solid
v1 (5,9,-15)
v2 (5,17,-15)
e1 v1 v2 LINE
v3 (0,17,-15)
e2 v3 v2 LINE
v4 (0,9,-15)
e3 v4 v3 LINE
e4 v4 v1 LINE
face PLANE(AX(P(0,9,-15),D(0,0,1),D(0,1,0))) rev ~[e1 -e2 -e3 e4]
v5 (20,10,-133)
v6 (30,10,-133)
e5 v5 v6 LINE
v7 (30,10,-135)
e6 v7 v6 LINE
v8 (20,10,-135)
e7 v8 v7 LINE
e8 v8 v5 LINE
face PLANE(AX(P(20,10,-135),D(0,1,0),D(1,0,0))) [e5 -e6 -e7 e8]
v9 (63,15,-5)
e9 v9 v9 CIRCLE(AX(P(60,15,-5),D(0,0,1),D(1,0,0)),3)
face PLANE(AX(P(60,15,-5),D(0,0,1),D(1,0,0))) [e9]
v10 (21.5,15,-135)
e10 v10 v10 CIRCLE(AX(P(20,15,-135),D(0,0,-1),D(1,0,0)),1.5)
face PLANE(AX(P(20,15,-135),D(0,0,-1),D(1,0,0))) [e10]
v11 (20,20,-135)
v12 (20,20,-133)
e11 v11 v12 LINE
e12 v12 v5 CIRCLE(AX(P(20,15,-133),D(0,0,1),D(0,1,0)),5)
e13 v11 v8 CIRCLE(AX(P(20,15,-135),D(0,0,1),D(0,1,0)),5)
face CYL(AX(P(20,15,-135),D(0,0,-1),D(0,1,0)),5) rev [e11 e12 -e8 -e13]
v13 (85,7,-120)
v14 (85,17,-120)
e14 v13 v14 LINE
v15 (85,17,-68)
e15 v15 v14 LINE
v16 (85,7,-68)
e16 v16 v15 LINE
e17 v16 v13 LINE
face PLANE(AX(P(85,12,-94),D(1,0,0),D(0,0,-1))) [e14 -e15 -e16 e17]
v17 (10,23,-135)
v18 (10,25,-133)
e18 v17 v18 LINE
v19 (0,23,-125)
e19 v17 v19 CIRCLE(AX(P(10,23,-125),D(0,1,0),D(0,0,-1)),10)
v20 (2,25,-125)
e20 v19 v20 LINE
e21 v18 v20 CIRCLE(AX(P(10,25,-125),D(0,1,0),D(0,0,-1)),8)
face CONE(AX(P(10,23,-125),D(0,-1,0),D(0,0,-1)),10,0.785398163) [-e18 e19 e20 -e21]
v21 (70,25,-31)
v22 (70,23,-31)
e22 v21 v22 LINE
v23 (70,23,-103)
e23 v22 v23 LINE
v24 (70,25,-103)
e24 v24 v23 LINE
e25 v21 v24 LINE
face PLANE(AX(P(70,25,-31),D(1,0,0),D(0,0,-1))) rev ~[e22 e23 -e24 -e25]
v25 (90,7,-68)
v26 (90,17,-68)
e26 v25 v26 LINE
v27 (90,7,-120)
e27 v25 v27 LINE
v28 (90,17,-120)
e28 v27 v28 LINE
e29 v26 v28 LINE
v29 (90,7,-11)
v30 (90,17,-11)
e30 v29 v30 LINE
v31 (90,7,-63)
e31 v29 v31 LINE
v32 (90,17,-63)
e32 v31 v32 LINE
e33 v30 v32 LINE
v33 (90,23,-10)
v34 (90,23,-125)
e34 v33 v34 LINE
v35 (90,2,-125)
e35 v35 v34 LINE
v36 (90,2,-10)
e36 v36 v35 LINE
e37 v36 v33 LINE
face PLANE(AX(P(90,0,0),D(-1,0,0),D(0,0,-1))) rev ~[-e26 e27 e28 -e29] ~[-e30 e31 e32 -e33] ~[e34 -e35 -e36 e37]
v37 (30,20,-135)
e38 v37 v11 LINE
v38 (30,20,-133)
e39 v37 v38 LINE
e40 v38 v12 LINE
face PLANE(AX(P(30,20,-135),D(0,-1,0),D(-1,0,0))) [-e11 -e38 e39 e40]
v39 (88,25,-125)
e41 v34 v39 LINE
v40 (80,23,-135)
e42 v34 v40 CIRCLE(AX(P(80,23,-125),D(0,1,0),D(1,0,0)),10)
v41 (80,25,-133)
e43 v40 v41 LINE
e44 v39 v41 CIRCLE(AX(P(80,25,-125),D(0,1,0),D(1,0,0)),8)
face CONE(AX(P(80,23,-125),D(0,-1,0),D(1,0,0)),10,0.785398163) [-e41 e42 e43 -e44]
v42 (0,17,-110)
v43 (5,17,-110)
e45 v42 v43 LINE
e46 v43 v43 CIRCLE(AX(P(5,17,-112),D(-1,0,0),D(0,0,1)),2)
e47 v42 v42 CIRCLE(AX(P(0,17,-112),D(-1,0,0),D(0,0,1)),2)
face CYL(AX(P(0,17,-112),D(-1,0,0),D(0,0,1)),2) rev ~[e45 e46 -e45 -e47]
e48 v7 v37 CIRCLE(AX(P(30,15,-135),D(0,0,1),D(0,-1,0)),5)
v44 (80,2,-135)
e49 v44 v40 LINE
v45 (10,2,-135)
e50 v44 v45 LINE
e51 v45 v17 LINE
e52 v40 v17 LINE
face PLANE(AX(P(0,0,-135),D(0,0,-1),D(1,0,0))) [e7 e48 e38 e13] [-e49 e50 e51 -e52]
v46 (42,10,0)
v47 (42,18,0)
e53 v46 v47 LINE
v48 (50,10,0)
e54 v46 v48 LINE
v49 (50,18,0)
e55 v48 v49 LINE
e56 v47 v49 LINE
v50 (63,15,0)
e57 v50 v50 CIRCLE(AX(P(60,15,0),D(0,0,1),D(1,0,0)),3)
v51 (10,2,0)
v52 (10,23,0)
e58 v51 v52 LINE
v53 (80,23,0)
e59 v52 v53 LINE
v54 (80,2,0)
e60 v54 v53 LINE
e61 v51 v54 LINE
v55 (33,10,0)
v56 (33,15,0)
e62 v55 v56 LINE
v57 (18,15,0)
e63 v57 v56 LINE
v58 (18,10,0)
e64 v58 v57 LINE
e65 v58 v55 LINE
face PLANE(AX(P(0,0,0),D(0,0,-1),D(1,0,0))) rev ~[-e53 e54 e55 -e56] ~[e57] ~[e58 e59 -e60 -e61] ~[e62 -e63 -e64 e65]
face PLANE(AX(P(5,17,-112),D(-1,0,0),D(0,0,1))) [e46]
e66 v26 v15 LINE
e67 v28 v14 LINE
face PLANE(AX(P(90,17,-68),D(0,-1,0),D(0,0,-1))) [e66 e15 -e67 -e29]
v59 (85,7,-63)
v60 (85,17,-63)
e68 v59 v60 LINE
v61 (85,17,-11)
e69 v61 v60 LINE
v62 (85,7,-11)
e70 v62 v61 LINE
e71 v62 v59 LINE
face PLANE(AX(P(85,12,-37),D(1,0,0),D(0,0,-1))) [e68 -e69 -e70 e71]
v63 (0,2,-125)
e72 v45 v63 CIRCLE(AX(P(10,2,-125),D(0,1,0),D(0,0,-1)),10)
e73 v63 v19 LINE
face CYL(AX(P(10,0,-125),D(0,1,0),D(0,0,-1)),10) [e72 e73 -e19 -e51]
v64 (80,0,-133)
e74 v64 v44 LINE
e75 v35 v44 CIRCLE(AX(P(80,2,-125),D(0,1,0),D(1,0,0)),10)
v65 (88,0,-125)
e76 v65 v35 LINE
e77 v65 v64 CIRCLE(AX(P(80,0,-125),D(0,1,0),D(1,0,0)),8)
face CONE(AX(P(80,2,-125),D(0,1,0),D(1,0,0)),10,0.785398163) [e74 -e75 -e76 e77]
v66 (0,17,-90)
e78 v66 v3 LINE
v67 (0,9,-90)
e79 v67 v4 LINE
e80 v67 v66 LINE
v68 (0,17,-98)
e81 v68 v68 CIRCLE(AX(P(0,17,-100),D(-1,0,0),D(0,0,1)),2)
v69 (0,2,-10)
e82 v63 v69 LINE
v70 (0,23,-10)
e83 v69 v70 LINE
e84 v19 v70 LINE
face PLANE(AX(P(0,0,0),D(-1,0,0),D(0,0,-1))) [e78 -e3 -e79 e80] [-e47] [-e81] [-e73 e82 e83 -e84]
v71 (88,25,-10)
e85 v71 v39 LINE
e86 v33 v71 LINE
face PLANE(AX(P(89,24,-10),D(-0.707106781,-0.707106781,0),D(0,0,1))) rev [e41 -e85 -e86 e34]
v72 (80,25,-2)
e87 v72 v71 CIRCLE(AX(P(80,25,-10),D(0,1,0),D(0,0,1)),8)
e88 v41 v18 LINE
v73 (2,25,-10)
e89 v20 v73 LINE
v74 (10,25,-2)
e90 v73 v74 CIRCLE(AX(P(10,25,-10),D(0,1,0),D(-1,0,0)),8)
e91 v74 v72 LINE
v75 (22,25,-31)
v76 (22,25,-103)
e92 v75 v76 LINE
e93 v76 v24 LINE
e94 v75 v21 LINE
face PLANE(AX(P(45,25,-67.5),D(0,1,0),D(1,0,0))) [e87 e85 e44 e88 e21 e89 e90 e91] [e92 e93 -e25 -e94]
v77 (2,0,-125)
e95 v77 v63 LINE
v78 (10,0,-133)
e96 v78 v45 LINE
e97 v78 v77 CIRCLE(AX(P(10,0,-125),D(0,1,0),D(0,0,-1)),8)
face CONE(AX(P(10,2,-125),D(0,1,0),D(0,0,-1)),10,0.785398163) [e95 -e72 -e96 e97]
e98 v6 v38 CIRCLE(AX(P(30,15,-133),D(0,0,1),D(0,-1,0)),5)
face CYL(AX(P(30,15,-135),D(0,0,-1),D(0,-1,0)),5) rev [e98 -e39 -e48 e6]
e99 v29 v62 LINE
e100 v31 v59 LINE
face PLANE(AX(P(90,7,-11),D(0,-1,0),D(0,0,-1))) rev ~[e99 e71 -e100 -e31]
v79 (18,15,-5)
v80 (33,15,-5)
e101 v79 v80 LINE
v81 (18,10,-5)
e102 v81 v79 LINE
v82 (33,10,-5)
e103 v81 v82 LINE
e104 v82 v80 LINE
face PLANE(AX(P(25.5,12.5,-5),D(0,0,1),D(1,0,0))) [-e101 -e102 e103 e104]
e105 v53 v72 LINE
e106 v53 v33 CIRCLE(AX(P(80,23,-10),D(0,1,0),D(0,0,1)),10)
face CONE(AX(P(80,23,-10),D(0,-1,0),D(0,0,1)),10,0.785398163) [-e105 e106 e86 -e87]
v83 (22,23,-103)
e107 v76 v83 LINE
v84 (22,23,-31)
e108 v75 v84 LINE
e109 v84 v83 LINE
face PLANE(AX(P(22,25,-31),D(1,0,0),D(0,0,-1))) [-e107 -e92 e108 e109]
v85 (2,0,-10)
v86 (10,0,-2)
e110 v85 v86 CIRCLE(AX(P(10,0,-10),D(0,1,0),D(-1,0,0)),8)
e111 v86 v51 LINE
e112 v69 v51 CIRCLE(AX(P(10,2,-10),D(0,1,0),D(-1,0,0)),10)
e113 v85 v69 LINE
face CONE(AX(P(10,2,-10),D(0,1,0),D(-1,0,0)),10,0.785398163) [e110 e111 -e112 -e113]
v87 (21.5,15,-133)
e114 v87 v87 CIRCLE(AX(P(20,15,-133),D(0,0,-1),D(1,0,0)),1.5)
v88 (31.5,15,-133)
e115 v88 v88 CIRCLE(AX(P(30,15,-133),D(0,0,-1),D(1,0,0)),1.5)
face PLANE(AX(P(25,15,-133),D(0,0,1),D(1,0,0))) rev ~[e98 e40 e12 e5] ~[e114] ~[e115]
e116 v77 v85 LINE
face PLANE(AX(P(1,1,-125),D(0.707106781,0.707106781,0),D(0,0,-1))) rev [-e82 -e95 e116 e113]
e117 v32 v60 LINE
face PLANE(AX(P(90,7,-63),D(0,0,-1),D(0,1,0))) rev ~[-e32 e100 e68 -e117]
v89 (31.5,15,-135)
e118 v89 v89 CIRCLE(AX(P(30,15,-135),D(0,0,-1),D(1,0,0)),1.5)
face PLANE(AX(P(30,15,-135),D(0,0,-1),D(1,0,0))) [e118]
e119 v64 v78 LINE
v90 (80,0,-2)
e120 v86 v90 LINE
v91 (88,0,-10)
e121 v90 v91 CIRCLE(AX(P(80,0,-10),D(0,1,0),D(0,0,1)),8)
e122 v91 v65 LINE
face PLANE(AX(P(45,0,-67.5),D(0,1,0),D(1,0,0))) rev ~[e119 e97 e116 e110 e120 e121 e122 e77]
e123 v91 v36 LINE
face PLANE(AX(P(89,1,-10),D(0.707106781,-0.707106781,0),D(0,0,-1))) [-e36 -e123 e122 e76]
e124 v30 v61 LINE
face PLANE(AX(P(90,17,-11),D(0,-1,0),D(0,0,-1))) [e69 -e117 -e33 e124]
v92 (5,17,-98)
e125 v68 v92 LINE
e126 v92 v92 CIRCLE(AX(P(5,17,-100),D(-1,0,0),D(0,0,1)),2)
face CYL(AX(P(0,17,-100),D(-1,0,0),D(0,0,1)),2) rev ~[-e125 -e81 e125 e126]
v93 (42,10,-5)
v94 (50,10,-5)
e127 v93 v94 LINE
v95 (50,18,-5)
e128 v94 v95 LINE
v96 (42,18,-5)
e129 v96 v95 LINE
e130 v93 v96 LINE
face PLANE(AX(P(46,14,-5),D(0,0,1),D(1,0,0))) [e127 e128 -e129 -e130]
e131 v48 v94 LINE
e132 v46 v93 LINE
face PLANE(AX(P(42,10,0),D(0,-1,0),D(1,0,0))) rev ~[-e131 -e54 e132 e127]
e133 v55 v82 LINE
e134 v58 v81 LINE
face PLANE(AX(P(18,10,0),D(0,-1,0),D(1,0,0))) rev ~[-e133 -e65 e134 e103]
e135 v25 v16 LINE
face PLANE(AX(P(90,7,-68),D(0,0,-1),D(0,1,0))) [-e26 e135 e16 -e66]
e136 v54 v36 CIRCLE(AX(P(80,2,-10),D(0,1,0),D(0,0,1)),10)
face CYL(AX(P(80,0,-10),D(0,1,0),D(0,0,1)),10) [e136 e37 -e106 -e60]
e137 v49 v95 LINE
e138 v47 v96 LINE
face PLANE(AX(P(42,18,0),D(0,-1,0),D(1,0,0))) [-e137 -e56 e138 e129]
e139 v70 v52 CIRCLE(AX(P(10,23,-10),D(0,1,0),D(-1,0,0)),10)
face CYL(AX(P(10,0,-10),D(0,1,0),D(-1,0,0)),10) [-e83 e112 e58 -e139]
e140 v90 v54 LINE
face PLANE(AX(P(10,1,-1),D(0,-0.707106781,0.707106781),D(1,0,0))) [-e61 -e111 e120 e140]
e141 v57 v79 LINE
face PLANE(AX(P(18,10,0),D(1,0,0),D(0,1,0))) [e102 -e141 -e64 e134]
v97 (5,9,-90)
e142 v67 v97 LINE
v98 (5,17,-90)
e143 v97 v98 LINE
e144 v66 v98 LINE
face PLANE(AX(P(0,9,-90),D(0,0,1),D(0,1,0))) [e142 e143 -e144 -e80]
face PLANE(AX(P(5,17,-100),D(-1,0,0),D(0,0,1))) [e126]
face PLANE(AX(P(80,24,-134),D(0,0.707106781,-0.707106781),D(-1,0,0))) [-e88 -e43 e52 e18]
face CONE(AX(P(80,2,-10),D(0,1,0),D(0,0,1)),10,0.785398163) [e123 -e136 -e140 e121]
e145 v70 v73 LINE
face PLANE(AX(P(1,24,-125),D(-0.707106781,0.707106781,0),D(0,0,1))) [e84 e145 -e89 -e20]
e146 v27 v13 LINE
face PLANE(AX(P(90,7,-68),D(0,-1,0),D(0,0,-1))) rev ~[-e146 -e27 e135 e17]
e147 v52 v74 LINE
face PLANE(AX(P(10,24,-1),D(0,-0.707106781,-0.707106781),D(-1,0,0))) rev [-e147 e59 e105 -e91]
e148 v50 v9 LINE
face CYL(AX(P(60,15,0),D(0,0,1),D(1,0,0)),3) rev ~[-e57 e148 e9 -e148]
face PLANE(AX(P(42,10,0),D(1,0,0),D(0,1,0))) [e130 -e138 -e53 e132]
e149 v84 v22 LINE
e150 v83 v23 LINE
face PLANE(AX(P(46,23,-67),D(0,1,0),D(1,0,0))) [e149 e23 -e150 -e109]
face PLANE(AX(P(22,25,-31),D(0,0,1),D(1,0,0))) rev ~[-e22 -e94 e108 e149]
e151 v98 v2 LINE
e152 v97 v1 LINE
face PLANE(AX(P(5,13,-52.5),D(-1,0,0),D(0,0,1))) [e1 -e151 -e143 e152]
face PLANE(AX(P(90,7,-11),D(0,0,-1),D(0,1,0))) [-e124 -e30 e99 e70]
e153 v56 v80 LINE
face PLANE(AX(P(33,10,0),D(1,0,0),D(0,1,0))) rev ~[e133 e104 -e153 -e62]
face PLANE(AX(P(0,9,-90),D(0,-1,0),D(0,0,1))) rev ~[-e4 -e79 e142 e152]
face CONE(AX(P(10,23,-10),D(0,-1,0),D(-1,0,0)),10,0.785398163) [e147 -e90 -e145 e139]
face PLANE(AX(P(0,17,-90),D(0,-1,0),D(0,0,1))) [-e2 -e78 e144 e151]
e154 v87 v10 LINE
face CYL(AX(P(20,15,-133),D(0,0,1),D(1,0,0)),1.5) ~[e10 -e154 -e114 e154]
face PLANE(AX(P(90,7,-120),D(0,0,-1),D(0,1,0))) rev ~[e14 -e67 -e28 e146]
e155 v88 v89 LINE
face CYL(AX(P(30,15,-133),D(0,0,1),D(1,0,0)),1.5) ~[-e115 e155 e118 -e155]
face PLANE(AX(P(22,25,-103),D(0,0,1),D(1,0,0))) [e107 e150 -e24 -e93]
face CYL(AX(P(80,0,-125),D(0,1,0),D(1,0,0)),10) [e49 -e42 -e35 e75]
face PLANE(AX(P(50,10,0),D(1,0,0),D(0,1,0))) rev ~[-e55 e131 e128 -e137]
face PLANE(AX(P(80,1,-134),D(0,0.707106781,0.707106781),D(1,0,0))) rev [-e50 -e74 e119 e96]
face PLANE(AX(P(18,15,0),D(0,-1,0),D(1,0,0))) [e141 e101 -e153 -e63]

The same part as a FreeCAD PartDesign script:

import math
import FreeCAD as App
import Part
import Sketcher
from FreeCAD import Vector


def edges_at(feature, points):
    """Names of the edges that pass closest to the given points."""
    edges = feature.Shape.Edges
    near = lambda p: min(range(len(edges)), key=lambda i: edges[i].distToShape(Part.Vertex(*p))[0])
    return sorted({f"Edge{near(p) + 1}" for p in points})


def add_polygon(sketch, points):
    """Adds a closed chain of lines whose ends are joined by coincident constraints."""
    first, n = sketch.GeometryCount, len(points)
    for a, b in zip(points, points[1:] + points[:1]):
        sketch.addGeometry(Part.LineSegment(App.Vector(*a, 0), App.Vector(*b, 0)), False)
    for i in range(n):
        sketch.addConstraint(Sketcher.Constraint("Coincident", first + i, 2, first + (i + 1) % n, 1))

doc = App.newDocument("Part")
body = doc.addObject("PartDesign::Body", "Body")

# Sketch on XZ plane
sketch1 = body.newObject("Sketcher::SketchObject", "Sketch")
sketch1.AttachmentSupport = (doc.getObject("XZ_Plane"), [""])
sketch1.MapMode = "FlatFace"
add_polygon(sketch1, [(0, -135), (0, 0), (90, 0), (90, -135)])  # lines 0-3
sketch1.addConstraint([
    Sketcher.Constraint("Vertical", 0),
    Sketcher.Constraint("Horizontal", 1),
    Sketcher.Constraint("Vertical", 2),
    Sketcher.Constraint("Horizontal", 3),
    Sketcher.Constraint("Coincident", 0, 2, -1, 1),
    Sketcher.Constraint("DistanceX", 1, 1, 1, 2, 90.0),
    Sketcher.Constraint("DistanceY", 0, 1, 0, 2, 135.0),
])
pad1 = body.newObject("PartDesign::Pad", "Pad")
pad1.Profile = sketch1
pad1.Length = 25
pad1.Reversed = True
doc.recompute()

fillet = body.newObject("PartDesign::Fillet", "Fillet")
fillet.Base = (pad1, edges_at(pad1, [(90, 12.5, 0)]))
fillet.Radius = 10
doc.recompute()

fillet2 = body.newObject("PartDesign::Fillet", "Fillet001")
fillet2.Base = (fillet, edges_at(fillet, [(90, 12.5, -135)]))
fillet2.Radius = 10
doc.recompute()

fillet3 = body.newObject("PartDesign::Fillet", "Fillet002")
fillet3.Base = (fillet2, edges_at(fillet2, [(0, 12.5, -135)]))
fillet3.Radius = 10
doc.recompute()

fillet4 = body.newObject("PartDesign::Fillet", "Fillet003")
fillet4.Base = (fillet3, edges_at(fillet3, [(0, 12.5, 0)]))
fillet4.Radius = 10
doc.recompute()

chamfer = body.newObject("PartDesign::Chamfer", "Chamfer")
chamfer.Base = (fillet4, edges_at(fillet4, [
    (90, 25, -67.5),
    (87.071, 25, -2.929),
    (87.071, 25, -132.071),
    (45, 25, -135),
    (2.929, 25, -132.071),
    (45, 25, 0),
    (0, 25, -67.5),
    (2.929, 25, -2.929),
]))
chamfer.Size = 2
doc.recompute()

chamfer2 = body.newObject("PartDesign::Chamfer", "Chamfer001")
chamfer2.Base = (chamfer, edges_at(chamfer, [
    (90, 0, -67.5),
    (87.071, 0, -2.929),
    (87.071, 0, -132.071),
    (45, 0, -135),
    (2.929, 0, -132.071),
    (45, 0, 0),
    (0, 0, -67.5),
    (2.929, 0, -2.929),
]))
chamfer2.Size = 2

# Sketch on XY plane
sketch2 = body.newObject("Sketcher::SketchObject", "Sketch001")
sketch2.AttachmentSupport = (doc.getObject("XY_Plane"), [""])
sketch2.MapMode = "FlatFace"
sketch2.addGeometry(Part.Circle(Vector(60, 15, 0), Vector(0, 0, 1), 3), False)  # 0
add_polygon(sketch2, [(42, 18), (42, 10), (50, 10), (50, 18)])  # lines 1-4
add_polygon(sketch2, [(18, 15), (18, 10), (33, 10), (33, 15)])  # lines 5-8
sketch2.addConstraint([
    Sketcher.Constraint("Vertical", 1),
    Sketcher.Constraint("Horizontal", 2),
    Sketcher.Constraint("Vertical", 3),
    Sketcher.Constraint("Horizontal", 4),
    Sketcher.Constraint("Vertical", 5),
    Sketcher.Constraint("Horizontal", 6),
    Sketcher.Constraint("Vertical", 7),
    Sketcher.Constraint("Horizontal", 8),
    Sketcher.Constraint("Horizontal", 2, 2, 5, 2),
    Sketcher.Constraint("Horizontal", 0, 3, 7, 2),
    Sketcher.Constraint("Equal", 4, 1),
    Sketcher.Constraint("Diameter", 0, 6.0),
    Sketcher.Constraint("DistanceX", 2, 1, 2, 2, 8.0),
    Sketcher.Constraint("DistanceX", 6, 1, 6, 2, 15.0),
    Sketcher.Constraint("DistanceY", 5, 2, 5, 1, 5.0),
    Sketcher.Constraint("DistanceX", -1, 1, 0, 3, 60.0),
    Sketcher.Constraint("DistanceY", -1, 1, 0, 3, 15.0),
    Sketcher.Constraint("DistanceX", -1, 1, 1, 2, 42.0),
    Sketcher.Constraint("DistanceX", -1, 1, 5, 2, 18.0),
])
pocket1 = body.newObject("PartDesign::Pocket", "Pocket")
pocket1.Profile = sketch2
pocket1.Length = 5

# Sketch on YZ plane
sketch3 = body.newObject("Sketcher::SketchObject", "Sketch002")
sketch3.AttachmentSupport = (doc.getObject("YZ_Plane"), [""])
sketch3.MapMode = "FlatFace"
sketch3.addGeometry(Part.Circle(Vector(17, -112, 0), Vector(0, 0, 1), 2), False)  # 0
sketch3.addGeometry(Part.Circle(Vector(17, -100, 0), Vector(0, 0, 1), 2), False)  # 1
add_polygon(sketch3, [(17, -90), (9, -90), (9, -15), (17, -15)])  # lines 2-5
sketch3.addConstraint([
    Sketcher.Constraint("Horizontal", 2),
    Sketcher.Constraint("Vertical", 3),
    Sketcher.Constraint("Horizontal", 4),
    Sketcher.Constraint("Vertical", 5),
    Sketcher.Constraint("Equal", 0, 1),
    Sketcher.Constraint("Vertical", 0, 3, 1, 3),
    Sketcher.Constraint("Vertical", 1, 3, 4, 2),
    Sketcher.Constraint("Diameter", 0, 4.0),
    Sketcher.Constraint("DistanceX", 2, 2, 2, 1, 8.0),
    Sketcher.Constraint("DistanceY", 3, 1, 3, 2, 75.0),
    Sketcher.Constraint("DistanceX", -1, 1, 0, 3, 17.0),
    Sketcher.Constraint("DistanceY", 0, 3, -1, 1, 112.0),
    Sketcher.Constraint("DistanceY", 1, 3, -1, 1, 100.0),
    Sketcher.Constraint("DistanceY", 2, 2, -1, 1, 90.0),
])
pocket2 = body.newObject("PartDesign::Pocket", "Pocket001")
pocket2.Profile = sketch3
pocket2.Length = 5
pocket2.Reversed = True

# Sketch on XZ plane
sketch4 = body.newObject("Sketcher::SketchObject", "Sketch003")
sketch4.AttachmentSupport = (doc.getObject("XZ_Plane"), [""])
sketch4.MapMode = "FlatFace"
sketch4.AttachmentOffset = App.Placement(Vector(0, 0, -25), App.Rotation())
add_polygon(sketch4, [(22, -103), (22, -31), (70, -31), (70, -103)])  # lines 0-3
sketch4.addConstraint([
    Sketcher.Constraint("Vertical", 0),
    Sketcher.Constraint("Horizontal", 1),
    Sketcher.Constraint("Vertical", 2),
    Sketcher.Constraint("Horizontal", 3),
    Sketcher.Constraint("DistanceX", 1, 1, 1, 2, 48.0),
    Sketcher.Constraint("DistanceY", 0, 1, 0, 2, 72.0),
    Sketcher.Constraint("DistanceX", -1, 1, 0, 2, 22.0),
    Sketcher.Constraint("DistanceY", 0, 2, -1, 1, 31.0),
])
pocket3 = body.newObject("PartDesign::Pocket", "Pocket002")
pocket3.Profile = sketch4
pocket3.Length = 2
pocket3.Reversed = True

# Sketch on XY plane
sketch5 = body.newObject("Sketcher::SketchObject", "Sketch004")
sketch5.AttachmentSupport = (doc.getObject("XY_Plane"), [""])
sketch5.MapMode = "FlatFace"
sketch5.AttachmentOffset = App.Placement(Vector(0, 0, -135), App.Rotation())
sketch5.addGeometry([
    Part.LineSegment(Vector(20, 20, 0), Vector(30, 20, 0)),
    Part.ArcOfCircle(Part.Circle(Vector(30, 15, 0), Vector(0, 0, 1), 5), math.radians(-90), math.radians(90)),
    Part.LineSegment(Vector(30, 10, 0), Vector(20, 10, 0)),
    Part.ArcOfCircle(Part.Circle(Vector(20, 15, 0), Vector(0, 0, 1), 5), math.radians(90), math.radians(270)),
], False)
sketch5.addConstraint([
    Sketcher.Constraint("Tangent", 0, 2, 1, 2),
    Sketcher.Constraint("Tangent", 1, 1, 2, 1),
    Sketcher.Constraint("Tangent", 2, 2, 3, 2),
    Sketcher.Constraint("Tangent", 3, 1, 0, 1),
    Sketcher.Constraint("Horizontal", 0),
    Sketcher.Constraint("Horizontal", 2),
    Sketcher.Constraint("Radius", 1, 5.0),
    Sketcher.Constraint("DistanceX", 0, 1, 0, 2, 10.0),
    Sketcher.Constraint("DistanceX", -1, 1, 1, 3, 30.0),
    Sketcher.Constraint("DistanceY", -1, 1, 1, 3, 15.0),
])
pocket4 = body.newObject("PartDesign::Pocket", "Pocket003")
pocket4.Profile = sketch5
pocket4.Length = 2
pocket4.Reversed = True

# Sketch on XY plane
sketch6 = body.newObject("Sketcher::SketchObject", "Sketch005")
sketch6.AttachmentSupport = (doc.getObject("XY_Plane"), [""])
sketch6.MapMode = "FlatFace"
sketch6.AttachmentOffset = App.Placement(Vector(0, 0, -133), App.Rotation())
sketch6.addGeometry([
    Part.Circle(Vector(30, 15, 0), Vector(0, 0, 1), 1.5),
    Part.Circle(Vector(20, 15, 0), Vector(0, 0, 1), 1.5),
], False)
sketch6.addConstraint([
    Sketcher.Constraint("Equal", 0, 1),
    Sketcher.Constraint("Horizontal", 0, 3, 1, 3),
    Sketcher.Constraint("Diameter", 0, 3.0),
    Sketcher.Constraint("DistanceX", -1, 1, 0, 3, 30.0),
    Sketcher.Constraint("DistanceY", -1, 1, 0, 3, 15.0),
    Sketcher.Constraint("DistanceX", -1, 1, 1, 3, 20.0),
])
pad2 = body.newObject("PartDesign::Pad", "Pad001")
pad2.Profile = sketch6
pad2.Length = 2
pad2.Reversed = True

# Sketch on YZ plane
sketch7 = body.newObject("Sketcher::SketchObject", "Sketch006")
sketch7.AttachmentSupport = (doc.getObject("YZ_Plane"), [""])
sketch7.MapMode = "FlatFace"
sketch7.AttachmentOffset = App.Placement(Vector(0, 0, 90), App.Rotation())
add_polygon(sketch7, [(17, -11), (7, -11), (7, -63), (17, -63)])  # lines 0-3
add_polygon(sketch7, [(17, -68), (7, -68), (7, -120), (17, -120)])  # lines 4-7
sketch7.addConstraint([
    Sketcher.Constraint("Horizontal", 0),
    Sketcher.Constraint("Vertical", 1),
    Sketcher.Constraint("Horizontal", 2),
    Sketcher.Constraint("Vertical", 3),
    Sketcher.Constraint("Horizontal", 4),
    Sketcher.Constraint("Vertical", 5),
    Sketcher.Constraint("Horizontal", 6),
    Sketcher.Constraint("Vertical", 7),
    Sketcher.Constraint("Vertical", 1, 2, 4, 2),
    Sketcher.Constraint("Vertical", 3, 2, 6, 2),
    Sketcher.Constraint("Equal", 3, 5),
    Sketcher.Constraint("DistanceX", 0, 2, 0, 1, 10.0),
    Sketcher.Constraint("DistanceY", 1, 2, 1, 1, 52.0),
    Sketcher.Constraint("DistanceX", -1, 1, 0, 2, 7.0),
    Sketcher.Constraint("DistanceY", 0, 2, -1, 1, 11.0),
    Sketcher.Constraint("DistanceY", 4, 2, -1, 1, 68.0),
])
pocket5 = body.newObject("PartDesign::Pocket", "Pocket004")
pocket5.Profile = sketch7
pocket5.Length = 5

doc.recompute()
